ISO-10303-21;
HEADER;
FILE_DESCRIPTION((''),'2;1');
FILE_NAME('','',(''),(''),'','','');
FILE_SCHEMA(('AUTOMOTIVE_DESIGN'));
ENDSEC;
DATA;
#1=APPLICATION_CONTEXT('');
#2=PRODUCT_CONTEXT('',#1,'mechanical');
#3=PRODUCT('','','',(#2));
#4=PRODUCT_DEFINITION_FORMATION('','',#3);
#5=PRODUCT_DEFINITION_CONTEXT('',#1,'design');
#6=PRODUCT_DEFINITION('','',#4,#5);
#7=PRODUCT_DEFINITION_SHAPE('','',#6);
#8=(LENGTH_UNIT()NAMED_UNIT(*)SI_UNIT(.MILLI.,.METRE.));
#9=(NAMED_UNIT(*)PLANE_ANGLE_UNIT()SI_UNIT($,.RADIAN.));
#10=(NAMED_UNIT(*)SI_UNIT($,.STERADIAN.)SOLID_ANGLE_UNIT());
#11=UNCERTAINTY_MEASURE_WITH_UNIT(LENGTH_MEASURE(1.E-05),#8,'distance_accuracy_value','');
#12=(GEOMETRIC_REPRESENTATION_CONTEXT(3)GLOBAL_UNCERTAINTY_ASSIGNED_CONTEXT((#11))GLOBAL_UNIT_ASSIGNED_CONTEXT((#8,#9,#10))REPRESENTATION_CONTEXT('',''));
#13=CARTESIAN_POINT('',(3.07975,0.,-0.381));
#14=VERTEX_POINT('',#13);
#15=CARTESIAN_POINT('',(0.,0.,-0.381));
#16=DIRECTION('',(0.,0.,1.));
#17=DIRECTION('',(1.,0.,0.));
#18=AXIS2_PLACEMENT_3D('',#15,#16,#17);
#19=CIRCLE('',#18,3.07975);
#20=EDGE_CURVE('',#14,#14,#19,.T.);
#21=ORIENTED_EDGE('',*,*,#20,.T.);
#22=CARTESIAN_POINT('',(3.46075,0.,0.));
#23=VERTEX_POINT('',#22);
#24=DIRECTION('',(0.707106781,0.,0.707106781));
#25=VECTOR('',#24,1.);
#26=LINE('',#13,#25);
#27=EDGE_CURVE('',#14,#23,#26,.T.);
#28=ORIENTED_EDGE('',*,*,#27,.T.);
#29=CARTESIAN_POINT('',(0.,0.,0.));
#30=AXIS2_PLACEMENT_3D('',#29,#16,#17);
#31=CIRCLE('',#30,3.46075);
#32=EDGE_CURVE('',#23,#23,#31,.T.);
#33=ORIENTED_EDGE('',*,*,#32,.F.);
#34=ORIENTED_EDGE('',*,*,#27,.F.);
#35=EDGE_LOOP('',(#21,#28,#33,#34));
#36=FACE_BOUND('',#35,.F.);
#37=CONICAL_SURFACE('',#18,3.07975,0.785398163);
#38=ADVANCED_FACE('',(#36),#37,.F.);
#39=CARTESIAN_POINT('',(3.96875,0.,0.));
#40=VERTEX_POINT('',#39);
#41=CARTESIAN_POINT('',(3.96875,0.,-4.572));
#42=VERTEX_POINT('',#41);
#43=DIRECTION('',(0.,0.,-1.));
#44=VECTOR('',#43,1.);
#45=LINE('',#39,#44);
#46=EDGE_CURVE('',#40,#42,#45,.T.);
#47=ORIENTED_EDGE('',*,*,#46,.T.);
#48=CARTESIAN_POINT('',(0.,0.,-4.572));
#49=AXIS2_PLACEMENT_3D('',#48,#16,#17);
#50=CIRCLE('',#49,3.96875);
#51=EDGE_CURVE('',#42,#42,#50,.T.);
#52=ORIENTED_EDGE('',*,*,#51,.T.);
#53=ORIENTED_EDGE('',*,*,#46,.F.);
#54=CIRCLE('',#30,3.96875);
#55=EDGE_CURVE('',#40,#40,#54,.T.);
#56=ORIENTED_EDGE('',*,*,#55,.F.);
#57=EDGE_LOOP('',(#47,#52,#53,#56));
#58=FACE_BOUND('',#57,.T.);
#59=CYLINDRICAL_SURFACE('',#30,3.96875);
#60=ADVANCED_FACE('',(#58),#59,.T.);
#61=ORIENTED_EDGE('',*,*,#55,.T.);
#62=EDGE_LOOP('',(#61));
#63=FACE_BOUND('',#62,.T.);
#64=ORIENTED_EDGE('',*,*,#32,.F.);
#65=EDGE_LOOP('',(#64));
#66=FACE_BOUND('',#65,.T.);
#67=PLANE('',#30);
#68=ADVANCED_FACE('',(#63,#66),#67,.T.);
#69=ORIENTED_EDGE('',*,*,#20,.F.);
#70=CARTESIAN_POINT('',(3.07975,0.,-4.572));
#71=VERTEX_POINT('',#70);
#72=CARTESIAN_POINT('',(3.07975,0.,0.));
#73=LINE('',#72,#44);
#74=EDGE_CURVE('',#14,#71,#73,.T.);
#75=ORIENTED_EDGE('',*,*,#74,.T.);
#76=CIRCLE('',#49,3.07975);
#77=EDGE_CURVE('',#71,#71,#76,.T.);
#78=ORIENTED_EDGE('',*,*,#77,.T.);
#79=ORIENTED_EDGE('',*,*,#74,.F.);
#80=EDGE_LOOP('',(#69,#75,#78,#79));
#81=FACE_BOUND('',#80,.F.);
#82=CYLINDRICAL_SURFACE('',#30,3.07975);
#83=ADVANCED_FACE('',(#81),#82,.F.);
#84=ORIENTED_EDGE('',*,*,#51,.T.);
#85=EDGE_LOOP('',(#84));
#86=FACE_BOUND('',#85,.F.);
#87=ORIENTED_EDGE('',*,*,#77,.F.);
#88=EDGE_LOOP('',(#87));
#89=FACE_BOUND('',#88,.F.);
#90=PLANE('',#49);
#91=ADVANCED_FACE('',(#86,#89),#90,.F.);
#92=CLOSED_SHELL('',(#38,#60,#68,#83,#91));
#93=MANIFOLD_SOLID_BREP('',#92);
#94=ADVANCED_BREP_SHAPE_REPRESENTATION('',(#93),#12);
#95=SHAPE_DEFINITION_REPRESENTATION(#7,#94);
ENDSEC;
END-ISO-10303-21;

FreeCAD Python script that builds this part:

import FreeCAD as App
import Part
import Sketcher
from FreeCAD import Vector
Q = App.Units.Quantity


def edges_at(feature, points):
    """Names of the edges that pass closest to the given points."""
    edges = feature.Shape.Edges
    near = lambda p: min(range(len(edges)), key=lambda i: edges[i].distToShape(Part.Vertex(*p))[0])
    return sorted({f"Edge{near(p) + 1}" for p in points})

doc = App.newDocument("Part")
params = doc.addObject("Spreadsheet::Sheet", "Params")
for row, (alias, value) in enumerate([
    ("sketch1_diameter", "0.3125 in"),
    ("pad1_length", "0.18 in"),
    ("chamfer_size", "0.015 in"),
], start=1):
    params.set(f"A{row}", alias)
    params.set(f"B{row}", "=" + value)
    params.setAlias(f"B{row}", alias)

body = doc.addObject("PartDesign::Body", "Body")

sketch1 = body.newObject("Sketcher::SketchObject", "Sketch")
sketch1.AttachmentSupport = (doc.getObject("XY_Plane"), [""])
sketch1.MapMode = "FlatFace"
sketch1.addGeometry(Part.Circle(Vector(0, 0, 0), Vector(0, 0, 1), 4), False)
sketch1.addGeometry(Part.Circle(Vector(0, 0, 0), Vector(0, 0, 1), 3.1), False)
sketch1.addConstraint(Sketcher.Constraint("Coincident", 0, 3, -1, 1))
sketch1.addConstraint(Sketcher.Constraint("Coincident", 1, 3, -1, 1))
sketch1.addConstraint(Sketcher.Constraint("Diameter", 0, Q("0.3125 in")))
sketch1.addConstraint(Sketcher.Constraint("Diameter", 1, Q("0.2425 in")))
sketch1.setExpression("Constraints[2]", "Params.sketch1_diameter")
pad1 = body.newObject("PartDesign::Pad", "Pad")
pad1.Profile = sketch1
pad1.setExpression("Length", "Params.pad1_length")
pad1.Reversed = True
doc.recompute()

chamfer = body.newObject("PartDesign::Chamfer", "Chamfer")
chamfer.Base = (pad1, edges_at(pad1, [(-3.08, 0, 0)]))
chamfer.setExpression("Size", "Params.chamfer_size")

doc.recompute()
